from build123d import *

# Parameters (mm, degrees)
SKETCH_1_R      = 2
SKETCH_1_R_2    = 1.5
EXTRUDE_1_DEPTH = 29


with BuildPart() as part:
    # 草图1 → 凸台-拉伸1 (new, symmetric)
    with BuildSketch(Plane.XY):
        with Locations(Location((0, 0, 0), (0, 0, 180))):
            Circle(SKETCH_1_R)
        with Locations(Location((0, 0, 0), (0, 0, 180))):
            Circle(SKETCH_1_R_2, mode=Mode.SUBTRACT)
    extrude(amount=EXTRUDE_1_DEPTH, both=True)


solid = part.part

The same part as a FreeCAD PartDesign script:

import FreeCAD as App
import Part
import Sketcher

doc = App.newDocument("Part")
body = doc.addObject("PartDesign::Body", "Body")

# Sketch on XY plane
sketch1 = body.newObject("Sketcher::SketchObject", "Sketch")
sketch1.AttachmentSupport = (doc.getObject("XY_Plane"), [""])
sketch1.MapMode = "FlatFace"
sketch1.addGeometry([
    Part.Circle(App.Vector(0, 0, 0), App.Vector(0, 0, 1), 2),
    Part.Circle(App.Vector(0, 0, 0), App.Vector(0, 0, 1), 1.5),
], False)
sketch1.addConstraint([
    Sketcher.Constraint("Coincident", 0, 3, -1, 1),
    Sketcher.Constraint("Coincident", 1, 3, -1, 1),
    Sketcher.Constraint("Diameter", 0, 4.0),
    Sketcher.Constraint("Diameter", 1, 3.0),
])
pad1 = body.newObject("PartDesign::Pad", "Pad")
pad1.Profile = sketch1
pad1.Length = 58
pad1.Midplane = True

doc.recompute()
